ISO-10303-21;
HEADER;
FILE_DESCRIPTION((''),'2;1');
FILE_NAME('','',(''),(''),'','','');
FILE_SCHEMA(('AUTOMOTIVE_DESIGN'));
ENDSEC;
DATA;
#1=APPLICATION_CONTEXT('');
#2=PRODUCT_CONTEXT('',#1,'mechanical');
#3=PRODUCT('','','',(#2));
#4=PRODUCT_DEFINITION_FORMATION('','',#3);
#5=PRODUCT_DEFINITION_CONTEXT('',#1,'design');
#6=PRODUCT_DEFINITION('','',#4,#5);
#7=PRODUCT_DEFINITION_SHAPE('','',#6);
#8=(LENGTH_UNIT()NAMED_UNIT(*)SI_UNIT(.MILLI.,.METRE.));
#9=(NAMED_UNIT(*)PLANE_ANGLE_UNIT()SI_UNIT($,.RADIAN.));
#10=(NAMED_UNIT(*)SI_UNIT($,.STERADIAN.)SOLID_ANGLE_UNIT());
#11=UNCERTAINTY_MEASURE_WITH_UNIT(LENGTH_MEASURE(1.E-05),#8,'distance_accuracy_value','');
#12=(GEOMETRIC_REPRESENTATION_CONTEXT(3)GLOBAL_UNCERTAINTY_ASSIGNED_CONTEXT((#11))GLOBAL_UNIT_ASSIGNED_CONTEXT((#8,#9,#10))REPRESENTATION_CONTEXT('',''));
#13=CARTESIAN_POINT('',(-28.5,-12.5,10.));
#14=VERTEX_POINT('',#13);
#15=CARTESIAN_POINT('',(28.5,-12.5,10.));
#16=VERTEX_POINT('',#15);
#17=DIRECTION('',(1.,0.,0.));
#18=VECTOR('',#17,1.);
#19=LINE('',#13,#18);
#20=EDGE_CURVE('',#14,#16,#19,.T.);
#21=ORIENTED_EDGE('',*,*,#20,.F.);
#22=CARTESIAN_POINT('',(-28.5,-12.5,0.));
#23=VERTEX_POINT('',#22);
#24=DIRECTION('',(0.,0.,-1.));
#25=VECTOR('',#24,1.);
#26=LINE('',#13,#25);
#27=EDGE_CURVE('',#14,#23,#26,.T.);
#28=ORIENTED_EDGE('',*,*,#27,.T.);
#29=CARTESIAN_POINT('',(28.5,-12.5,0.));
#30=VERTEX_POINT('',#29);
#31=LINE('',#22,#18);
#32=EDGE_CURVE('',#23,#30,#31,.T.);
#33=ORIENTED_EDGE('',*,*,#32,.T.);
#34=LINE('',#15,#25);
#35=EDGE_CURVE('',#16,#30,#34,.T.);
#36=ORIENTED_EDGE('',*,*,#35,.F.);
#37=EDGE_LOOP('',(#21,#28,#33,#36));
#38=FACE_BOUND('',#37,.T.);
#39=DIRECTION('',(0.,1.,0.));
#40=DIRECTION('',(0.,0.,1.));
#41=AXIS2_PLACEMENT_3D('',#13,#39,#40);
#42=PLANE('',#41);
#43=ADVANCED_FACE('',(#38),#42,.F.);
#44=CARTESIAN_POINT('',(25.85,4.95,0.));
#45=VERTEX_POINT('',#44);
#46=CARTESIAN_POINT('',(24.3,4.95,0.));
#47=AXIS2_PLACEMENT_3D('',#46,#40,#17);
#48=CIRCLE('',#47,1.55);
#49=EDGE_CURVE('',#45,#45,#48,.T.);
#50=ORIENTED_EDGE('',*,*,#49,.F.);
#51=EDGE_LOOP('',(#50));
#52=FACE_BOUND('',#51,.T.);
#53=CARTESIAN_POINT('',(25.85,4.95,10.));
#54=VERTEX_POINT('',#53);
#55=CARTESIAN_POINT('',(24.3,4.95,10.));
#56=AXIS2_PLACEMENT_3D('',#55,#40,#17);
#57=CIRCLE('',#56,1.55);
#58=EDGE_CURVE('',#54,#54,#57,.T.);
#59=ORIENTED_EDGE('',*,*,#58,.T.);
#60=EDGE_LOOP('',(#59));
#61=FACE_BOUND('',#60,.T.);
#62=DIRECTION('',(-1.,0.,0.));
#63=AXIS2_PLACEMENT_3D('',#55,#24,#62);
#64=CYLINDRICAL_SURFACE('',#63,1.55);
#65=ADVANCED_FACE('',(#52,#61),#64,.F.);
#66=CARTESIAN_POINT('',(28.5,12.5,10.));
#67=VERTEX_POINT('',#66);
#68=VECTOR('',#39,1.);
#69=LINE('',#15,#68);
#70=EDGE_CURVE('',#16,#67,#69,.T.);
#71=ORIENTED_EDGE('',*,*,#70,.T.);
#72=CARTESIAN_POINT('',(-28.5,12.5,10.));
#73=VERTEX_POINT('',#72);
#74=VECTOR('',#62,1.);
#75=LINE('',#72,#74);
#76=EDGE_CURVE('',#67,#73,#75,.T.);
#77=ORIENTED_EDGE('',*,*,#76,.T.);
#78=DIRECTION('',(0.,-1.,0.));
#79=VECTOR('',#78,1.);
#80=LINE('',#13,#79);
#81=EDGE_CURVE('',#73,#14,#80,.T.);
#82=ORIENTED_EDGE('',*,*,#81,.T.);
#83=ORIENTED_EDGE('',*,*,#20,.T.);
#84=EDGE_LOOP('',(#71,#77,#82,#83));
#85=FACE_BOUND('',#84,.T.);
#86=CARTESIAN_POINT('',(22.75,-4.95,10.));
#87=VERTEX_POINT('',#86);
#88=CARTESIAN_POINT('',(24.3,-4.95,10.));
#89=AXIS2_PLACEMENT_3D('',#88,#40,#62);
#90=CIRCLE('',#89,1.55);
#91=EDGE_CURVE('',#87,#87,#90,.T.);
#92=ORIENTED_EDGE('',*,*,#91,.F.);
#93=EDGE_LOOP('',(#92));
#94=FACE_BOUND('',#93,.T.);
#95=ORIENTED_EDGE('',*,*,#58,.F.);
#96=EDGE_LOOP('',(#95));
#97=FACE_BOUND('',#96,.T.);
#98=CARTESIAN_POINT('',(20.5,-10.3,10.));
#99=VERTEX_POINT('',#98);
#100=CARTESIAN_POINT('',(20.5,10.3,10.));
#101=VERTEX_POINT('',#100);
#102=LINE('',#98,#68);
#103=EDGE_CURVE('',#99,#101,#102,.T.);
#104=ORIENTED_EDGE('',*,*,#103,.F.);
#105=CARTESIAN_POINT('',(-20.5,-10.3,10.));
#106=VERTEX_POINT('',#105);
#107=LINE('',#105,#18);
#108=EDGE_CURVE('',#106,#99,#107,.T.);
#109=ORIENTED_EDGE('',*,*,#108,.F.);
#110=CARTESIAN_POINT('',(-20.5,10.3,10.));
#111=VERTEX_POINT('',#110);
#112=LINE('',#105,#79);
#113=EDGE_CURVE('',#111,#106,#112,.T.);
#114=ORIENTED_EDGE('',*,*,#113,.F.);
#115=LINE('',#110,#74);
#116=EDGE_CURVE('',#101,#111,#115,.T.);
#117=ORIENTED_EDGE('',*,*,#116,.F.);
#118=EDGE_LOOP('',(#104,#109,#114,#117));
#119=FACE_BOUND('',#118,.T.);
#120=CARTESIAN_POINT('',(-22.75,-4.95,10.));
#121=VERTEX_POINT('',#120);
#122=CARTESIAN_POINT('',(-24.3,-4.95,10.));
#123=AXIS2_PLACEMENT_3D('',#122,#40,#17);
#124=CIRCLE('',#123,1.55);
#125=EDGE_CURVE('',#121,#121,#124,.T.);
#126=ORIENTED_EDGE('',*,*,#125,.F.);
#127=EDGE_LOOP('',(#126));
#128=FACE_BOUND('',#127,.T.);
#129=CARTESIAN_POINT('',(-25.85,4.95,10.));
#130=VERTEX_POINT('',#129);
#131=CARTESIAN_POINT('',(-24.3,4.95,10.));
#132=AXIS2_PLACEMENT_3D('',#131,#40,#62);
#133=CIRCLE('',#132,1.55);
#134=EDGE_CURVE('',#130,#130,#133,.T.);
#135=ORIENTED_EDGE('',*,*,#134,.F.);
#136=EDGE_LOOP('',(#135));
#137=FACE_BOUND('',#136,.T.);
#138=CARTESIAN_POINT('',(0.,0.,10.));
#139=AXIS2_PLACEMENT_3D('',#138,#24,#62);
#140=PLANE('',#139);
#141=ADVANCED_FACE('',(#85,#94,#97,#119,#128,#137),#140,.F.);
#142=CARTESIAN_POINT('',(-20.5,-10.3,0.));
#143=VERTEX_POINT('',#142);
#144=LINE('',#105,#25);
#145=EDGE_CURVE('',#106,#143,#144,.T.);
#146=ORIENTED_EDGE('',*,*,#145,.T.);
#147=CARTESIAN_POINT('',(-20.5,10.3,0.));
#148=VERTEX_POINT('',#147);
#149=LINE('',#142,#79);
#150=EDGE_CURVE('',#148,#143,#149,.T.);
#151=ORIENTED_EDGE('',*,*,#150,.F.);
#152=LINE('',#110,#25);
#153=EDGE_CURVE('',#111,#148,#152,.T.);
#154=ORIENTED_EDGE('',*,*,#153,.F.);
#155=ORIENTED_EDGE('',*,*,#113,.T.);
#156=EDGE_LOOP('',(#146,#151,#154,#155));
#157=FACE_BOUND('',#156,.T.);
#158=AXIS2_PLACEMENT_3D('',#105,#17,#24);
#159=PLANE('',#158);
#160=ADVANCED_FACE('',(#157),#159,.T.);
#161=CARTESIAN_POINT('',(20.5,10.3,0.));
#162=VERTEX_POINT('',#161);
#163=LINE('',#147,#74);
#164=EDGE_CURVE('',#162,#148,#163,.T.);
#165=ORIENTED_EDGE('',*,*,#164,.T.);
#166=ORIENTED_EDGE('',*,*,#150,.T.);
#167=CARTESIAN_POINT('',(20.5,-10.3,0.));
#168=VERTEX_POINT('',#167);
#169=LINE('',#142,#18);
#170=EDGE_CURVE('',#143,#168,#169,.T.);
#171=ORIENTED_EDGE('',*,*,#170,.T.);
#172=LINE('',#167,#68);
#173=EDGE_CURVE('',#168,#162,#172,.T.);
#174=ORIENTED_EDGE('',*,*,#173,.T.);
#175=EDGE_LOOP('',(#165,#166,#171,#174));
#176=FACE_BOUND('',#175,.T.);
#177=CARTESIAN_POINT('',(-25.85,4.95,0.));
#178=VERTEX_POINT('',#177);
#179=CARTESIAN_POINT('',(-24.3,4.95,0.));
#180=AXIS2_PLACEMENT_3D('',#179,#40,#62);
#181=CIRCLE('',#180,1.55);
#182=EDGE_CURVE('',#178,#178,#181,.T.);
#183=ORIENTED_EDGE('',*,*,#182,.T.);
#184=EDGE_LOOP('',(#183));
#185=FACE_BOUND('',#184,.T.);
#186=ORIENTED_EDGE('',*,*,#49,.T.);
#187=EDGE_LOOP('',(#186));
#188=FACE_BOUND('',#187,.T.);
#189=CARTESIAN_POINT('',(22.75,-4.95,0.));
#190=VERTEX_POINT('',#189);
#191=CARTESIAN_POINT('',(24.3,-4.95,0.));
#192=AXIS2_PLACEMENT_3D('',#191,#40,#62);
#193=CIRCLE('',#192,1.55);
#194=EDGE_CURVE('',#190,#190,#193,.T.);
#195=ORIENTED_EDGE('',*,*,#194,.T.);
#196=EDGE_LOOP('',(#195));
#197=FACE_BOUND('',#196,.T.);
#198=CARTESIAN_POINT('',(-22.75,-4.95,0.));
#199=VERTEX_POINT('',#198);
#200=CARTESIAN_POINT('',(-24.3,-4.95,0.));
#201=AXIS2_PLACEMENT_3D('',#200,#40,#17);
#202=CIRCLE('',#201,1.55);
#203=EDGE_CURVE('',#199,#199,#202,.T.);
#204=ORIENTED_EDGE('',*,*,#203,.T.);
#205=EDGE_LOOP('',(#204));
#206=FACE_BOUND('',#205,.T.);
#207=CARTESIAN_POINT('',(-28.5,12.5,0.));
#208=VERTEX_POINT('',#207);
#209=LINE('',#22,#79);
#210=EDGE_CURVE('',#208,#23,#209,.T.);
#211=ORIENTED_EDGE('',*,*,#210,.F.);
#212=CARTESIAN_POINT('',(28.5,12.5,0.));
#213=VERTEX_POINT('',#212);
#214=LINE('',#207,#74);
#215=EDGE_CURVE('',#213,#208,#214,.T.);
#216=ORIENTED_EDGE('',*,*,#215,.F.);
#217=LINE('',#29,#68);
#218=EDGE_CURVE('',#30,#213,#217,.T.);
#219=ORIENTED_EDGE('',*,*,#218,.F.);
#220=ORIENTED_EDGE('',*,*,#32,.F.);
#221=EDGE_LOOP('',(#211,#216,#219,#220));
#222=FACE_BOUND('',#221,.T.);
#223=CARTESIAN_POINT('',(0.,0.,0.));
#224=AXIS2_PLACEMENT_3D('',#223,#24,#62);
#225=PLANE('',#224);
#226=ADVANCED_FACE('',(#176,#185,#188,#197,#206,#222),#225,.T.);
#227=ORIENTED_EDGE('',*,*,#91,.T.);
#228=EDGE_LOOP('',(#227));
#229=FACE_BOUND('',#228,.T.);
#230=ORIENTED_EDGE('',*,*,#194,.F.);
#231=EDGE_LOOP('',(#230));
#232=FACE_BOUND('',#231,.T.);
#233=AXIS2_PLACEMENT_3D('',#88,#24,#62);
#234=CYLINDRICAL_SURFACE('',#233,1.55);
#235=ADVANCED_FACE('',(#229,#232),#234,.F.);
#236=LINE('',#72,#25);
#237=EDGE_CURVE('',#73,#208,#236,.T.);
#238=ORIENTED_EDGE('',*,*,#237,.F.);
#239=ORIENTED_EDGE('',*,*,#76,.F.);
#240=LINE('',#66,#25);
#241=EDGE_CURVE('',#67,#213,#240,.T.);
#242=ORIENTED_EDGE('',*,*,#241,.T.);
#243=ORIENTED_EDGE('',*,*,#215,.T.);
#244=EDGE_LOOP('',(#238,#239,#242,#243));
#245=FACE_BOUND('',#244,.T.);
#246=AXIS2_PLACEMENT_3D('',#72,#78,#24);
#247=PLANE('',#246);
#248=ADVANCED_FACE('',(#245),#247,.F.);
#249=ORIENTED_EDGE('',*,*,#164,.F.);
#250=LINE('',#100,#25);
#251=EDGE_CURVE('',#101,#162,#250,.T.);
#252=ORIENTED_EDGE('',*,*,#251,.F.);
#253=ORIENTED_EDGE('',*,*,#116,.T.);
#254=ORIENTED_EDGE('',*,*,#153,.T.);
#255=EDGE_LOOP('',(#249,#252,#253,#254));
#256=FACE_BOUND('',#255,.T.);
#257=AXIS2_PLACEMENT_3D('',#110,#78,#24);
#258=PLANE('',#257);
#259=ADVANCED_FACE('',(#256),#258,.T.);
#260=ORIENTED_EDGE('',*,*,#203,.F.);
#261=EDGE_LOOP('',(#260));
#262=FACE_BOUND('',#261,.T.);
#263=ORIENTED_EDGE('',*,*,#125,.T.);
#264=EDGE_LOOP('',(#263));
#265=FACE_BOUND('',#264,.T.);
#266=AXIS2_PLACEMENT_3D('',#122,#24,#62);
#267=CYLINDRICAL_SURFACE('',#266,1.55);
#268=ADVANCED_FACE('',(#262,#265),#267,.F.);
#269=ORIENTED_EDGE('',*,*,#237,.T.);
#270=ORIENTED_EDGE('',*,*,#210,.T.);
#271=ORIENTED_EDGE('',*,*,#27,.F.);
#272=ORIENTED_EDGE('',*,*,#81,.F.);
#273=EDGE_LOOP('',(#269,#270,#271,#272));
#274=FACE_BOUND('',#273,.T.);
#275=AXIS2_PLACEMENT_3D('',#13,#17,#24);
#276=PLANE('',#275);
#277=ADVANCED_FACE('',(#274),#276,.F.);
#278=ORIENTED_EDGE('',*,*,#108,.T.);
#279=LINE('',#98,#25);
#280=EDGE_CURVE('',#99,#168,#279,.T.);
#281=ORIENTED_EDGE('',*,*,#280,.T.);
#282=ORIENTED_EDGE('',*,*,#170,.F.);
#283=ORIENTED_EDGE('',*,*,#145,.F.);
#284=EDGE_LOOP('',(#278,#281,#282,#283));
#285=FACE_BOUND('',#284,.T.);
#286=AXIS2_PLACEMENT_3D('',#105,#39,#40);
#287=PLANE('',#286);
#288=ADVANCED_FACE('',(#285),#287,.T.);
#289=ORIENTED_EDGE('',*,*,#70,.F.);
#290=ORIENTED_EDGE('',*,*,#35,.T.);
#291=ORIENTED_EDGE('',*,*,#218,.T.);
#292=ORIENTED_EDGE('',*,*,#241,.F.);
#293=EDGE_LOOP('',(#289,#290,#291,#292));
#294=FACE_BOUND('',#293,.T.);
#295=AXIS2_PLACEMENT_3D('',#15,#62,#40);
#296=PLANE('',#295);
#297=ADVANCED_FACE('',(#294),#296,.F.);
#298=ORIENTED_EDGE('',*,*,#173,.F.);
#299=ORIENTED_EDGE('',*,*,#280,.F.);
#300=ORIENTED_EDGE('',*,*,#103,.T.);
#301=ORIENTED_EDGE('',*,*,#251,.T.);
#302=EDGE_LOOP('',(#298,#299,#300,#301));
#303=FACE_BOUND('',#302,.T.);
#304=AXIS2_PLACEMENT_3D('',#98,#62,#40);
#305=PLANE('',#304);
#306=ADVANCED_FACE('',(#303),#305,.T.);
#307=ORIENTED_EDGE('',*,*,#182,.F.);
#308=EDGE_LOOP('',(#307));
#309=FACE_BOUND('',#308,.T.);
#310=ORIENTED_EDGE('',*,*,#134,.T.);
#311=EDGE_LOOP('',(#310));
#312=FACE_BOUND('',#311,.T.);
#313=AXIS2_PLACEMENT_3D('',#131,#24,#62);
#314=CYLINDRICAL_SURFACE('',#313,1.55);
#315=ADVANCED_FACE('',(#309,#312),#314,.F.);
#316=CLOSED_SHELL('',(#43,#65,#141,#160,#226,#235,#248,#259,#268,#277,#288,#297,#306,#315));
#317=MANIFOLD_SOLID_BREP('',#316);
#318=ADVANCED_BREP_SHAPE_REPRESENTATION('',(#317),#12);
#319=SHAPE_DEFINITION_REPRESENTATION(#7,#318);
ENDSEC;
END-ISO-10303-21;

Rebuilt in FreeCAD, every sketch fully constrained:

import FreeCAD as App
import Part
import Sketcher
from FreeCAD import Vector


def add_polygon(sketch, points):
    """Adds a closed chain of lines whose ends are joined by coincident constraints."""
    first, n = sketch.GeometryCount, len(points)
    for a, b in zip(points, points[1:] + points[:1]):
        sketch.addGeometry(Part.LineSegment(App.Vector(*a, 0), App.Vector(*b, 0)), False)
    for i in range(n):
        sketch.addConstraint(Sketcher.Constraint("Coincident", first + i, 2, first + (i + 1) % n, 1))

doc = App.newDocument("Part")
body = doc.addObject("PartDesign::Body", "Body")

# Sketch on XY plane
sketch1 = body.newObject("Sketcher::SketchObject", "Sketch")
sketch1.AttachmentSupport = (doc.getObject("XY_Plane"), [""])
sketch1.MapMode = "FlatFace"
add_polygon(sketch1, [(-28.5, 12.5), (-28.5, -12.5), (28.5, -12.5), (28.5, 12.5)])  # lines 0-3
sketch1.addGeometry(Part.Circle(Vector(-24.3, -5, 0), Vector(0, 0, 1), 1.6), False)  # 4
sketch1.addGeometry(Part.Circle(Vector(24.3, -5, 0), Vector(0, 0, 1), 1.6), False)  # 5
sketch1.addGeometry(Part.Circle(Vector(-24.3, 5, 0), Vector(0, 0, 1), 1.6), False)  # 6
add_polygon(sketch1, [(20.5, -10.3), (-20.5, -10.3), (-20.5, 10.3), (20.5, 10.3)])  # lines 7-10
sketch1.addGeometry(Part.Circle(Vector(24.3, 5, 0), Vector(0, 0, 1), 1.6), False)  # 11
sketch1.addConstraint([
    Sketcher.Constraint("Vertical", 0),
    Sketcher.Constraint("Horizontal", 1),
    Sketcher.Constraint("Vertical", 2),
    Sketcher.Constraint("Horizontal", 3),
    Sketcher.Constraint("Horizontal", 7),
    Sketcher.Constraint("Vertical", 8),
    Sketcher.Constraint("Horizontal", 9),
    Sketcher.Constraint("Vertical", 10),
    Sketcher.Constraint("Equal", 4, 5),
    Sketcher.Constraint("Equal", 5, 6),
    Sketcher.Constraint("Equal", 6, 11),
    Sketcher.Constraint("Symmetric", 5, 3, 6, 3, -1, 1),
    Sketcher.Constraint("Symmetric", 4, 3, 11, 3, -1, 1),
    Sketcher.Constraint("Symmetric", 0, 2, 2, 2, -1, 1),
    Sketcher.Constraint("Symmetric", 7, 2, 9, 2, -1, 1),
    Sketcher.Constraint("Symmetric", 4, 3, 5, 3, -2),
    Sketcher.Constraint("Diameter", 4, 3.1),
    Sketcher.Constraint("DistanceX", 1, 1, 1, 2, 57.0),
    Sketcher.Constraint("DistanceX", 7, 2, 7, 1, 41.0),
    Sketcher.Constraint("DistanceY", 0, 2, 0, 1, 25.0),
    Sketcher.Constraint("DistanceY", 8, 1, 8, 2, 20.6),
    Sketcher.Constraint("DistanceX", 4, 3, -1, 1, 24.3),
    Sketcher.Constraint("DistanceY", 4, 3, 6, 3, 9.9),
])
pad1 = body.newObject("PartDesign::Pad", "Pad")
pad1.Profile = sketch1
pad1.Length = 10

doc.recompute()
